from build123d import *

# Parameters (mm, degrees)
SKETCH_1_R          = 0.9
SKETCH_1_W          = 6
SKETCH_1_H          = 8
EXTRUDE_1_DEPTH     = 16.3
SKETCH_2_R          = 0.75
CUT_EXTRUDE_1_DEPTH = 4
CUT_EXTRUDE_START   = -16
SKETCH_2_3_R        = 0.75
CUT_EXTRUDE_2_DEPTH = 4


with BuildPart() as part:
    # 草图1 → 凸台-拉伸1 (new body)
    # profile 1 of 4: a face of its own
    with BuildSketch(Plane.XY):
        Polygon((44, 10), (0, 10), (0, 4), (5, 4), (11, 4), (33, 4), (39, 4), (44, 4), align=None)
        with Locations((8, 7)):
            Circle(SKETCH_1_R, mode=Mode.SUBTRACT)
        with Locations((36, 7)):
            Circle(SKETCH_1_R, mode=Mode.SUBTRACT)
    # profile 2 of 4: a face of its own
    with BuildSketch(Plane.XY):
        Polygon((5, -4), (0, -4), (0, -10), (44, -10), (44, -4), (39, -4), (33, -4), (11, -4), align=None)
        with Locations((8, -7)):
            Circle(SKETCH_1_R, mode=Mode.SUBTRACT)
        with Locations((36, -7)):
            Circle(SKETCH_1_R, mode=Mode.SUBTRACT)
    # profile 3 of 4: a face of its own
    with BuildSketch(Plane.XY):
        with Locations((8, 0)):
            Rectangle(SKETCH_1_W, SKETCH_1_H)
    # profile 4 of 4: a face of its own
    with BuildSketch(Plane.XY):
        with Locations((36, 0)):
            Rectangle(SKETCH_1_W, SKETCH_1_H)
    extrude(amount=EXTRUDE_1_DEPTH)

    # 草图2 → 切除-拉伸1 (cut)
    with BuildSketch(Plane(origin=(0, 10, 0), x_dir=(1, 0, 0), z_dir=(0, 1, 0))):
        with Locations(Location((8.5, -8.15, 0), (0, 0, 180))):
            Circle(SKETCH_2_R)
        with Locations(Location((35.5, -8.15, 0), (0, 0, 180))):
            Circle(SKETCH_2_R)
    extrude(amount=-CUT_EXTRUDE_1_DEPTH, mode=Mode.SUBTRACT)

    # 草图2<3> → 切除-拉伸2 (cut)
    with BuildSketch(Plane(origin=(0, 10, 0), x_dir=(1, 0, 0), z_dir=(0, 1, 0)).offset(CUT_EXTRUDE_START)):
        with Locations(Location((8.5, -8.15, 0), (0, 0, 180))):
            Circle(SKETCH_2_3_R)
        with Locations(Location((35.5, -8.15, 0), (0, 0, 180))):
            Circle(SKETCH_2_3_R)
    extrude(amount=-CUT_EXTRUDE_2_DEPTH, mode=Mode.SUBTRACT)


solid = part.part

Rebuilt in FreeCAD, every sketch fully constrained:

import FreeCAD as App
import Part
import Sketcher
Q = App.Units.Quantity

doc = App.newDocument("Part")
body = doc.addObject("PartDesign::Body", "Body")

sketch1 = body.newObject("Sketcher::SketchObject", "Sketch")
sketch1.AttachmentSupport = (doc.getObject("XY_Plane"), [""])
sketch1.MapMode = "FlatFace"
sketch1.addGeometry(Part.LineSegment(App.Vector(44, 10, 0), App.Vector(0, 10, 0)), False)
sketch1.addGeometry(Part.LineSegment(App.Vector(0, 10, 0), App.Vector(0, 4, 0)), False)
sketch1.addGeometry(Part.LineSegment(App.Vector(0, 4, 0), App.Vector(5, 4, 0)), False)
sketch1.addGeometry(Part.LineSegment(App.Vector(5, 4, 0), App.Vector(5, -4, 0)), False)
sketch1.addGeometry(Part.LineSegment(App.Vector(5, -4, 0), App.Vector(0, -4, 0)), False)
sketch1.addGeometry(Part.LineSegment(App.Vector(0, -4, 0), App.Vector(0, -10, 0)), False)
sketch1.addGeometry(Part.LineSegment(App.Vector(0, -10, 0), App.Vector(44, -10, 0)), False)
sketch1.addGeometry(Part.LineSegment(App.Vector(44, -10, 0), App.Vector(44, -4, 0)), False)
sketch1.addGeometry(Part.LineSegment(App.Vector(44, -4, 0), App.Vector(39, -4, 0)), False)
sketch1.addGeometry(Part.LineSegment(App.Vector(39, -4, 0), App.Vector(39, 4, 0)), False)
sketch1.addGeometry(Part.LineSegment(App.Vector(39, 4, 0), App.Vector(44, 4, 0)), False)
sketch1.addGeometry(Part.LineSegment(App.Vector(44, 4, 0), App.Vector(44, 10, 0)), False)
sketch1.addGeometry(Part.LineSegment(App.Vector(11, 4, 0), App.Vector(33, 4, 0)), False)
sketch1.addGeometry(Part.LineSegment(App.Vector(33, 4, 0), App.Vector(33, -4, 0)), False)
sketch1.addGeometry(Part.LineSegment(App.Vector(33, -4, 0), App.Vector(11, -4, 0)), False)
sketch1.addGeometry(Part.LineSegment(App.Vector(11, -4, 0), App.Vector(11, 4, 0)), False)
sketch1.addGeometry(Part.Circle(App.Vector(8, 7, 0), App.Vector(0, 0, 1), 0.9), False)
sketch1.addGeometry(Part.Circle(App.Vector(36, 7, 0), App.Vector(0, 0, 1), 0.9), False)
sketch1.addGeometry(Part.Circle(App.Vector(8, -7, 0), App.Vector(0, 0, 1), 0.9), False)
sketch1.addGeometry(Part.Circle(App.Vector(36, -7, 0), App.Vector(0, 0, 1), 0.9), False)
sketch1.addConstraint(Sketcher.Constraint("Coincident", 0, 2, 1, 1))
sketch1.addConstraint(Sketcher.Constraint("Coincident", 1, 2, 2, 1))
sketch1.addConstraint(Sketcher.Constraint("Coincident", 2, 2, 3, 1))
sketch1.addConstraint(Sketcher.Constraint("Coincident", 3, 2, 4, 1))
sketch1.addConstraint(Sketcher.Constraint("Coincident", 4, 2, 5, 1))
sketch1.addConstraint(Sketcher.Constraint("Coincident", 5, 2, 6, 1))
sketch1.addConstraint(Sketcher.Constraint("Coincident", 6, 2, 7, 1))
sketch1.addConstraint(Sketcher.Constraint("Coincident", 7, 2, 8, 1))
sketch1.addConstraint(Sketcher.Constraint("Coincident", 8, 2, 9, 1))
sketch1.addConstraint(Sketcher.Constraint("Coincident", 9, 2, 10, 1))
sketch1.addConstraint(Sketcher.Constraint("Coincident", 10, 2, 11, 1))
sketch1.addConstraint(Sketcher.Constraint("Coincident", 11, 2, 0, 1))
sketch1.addConstraint(Sketcher.Constraint("Coincident", 12, 2, 13, 1))
sketch1.addConstraint(Sketcher.Constraint("Coincident", 13, 2, 14, 1))
sketch1.addConstraint(Sketcher.Constraint("Coincident", 14, 2, 15, 1))
sketch1.addConstraint(Sketcher.Constraint("Coincident", 15, 2, 12, 1))
sketch1.addConstraint(Sketcher.Constraint("Horizontal", 0))
sketch1.addConstraint(Sketcher.Constraint("Vertical", 1))
sketch1.addConstraint(Sketcher.Constraint("Horizontal", 2))
sketch1.addConstraint(Sketcher.Constraint("Vertical", 3))
sketch1.addConstraint(Sketcher.Constraint("Horizontal", 4))
sketch1.addConstraint(Sketcher.Constraint("Vertical", 5))
sketch1.addConstraint(Sketcher.Constraint("Horizontal", 6))
sketch1.addConstraint(Sketcher.Constraint("Vertical", 7))
sketch1.addConstraint(Sketcher.Constraint("Horizontal", 8))
sketch1.addConstraint(Sketcher.Constraint("Vertical", 9))
sketch1.addConstraint(Sketcher.Constraint("Horizontal", 10))
sketch1.addConstraint(Sketcher.Constraint("Vertical", 11))
sketch1.addConstraint(Sketcher.Constraint("Horizontal", 12))
sketch1.addConstraint(Sketcher.Constraint("Vertical", 13))
sketch1.addConstraint(Sketcher.Constraint("Horizontal", 14))
sketch1.addConstraint(Sketcher.Constraint("Vertical", 15))
sketch1.addConstraint(Sketcher.Constraint("Equal", 16, 17))
sketch1.addConstraint(Sketcher.Constraint("Equal", 17, 18))
sketch1.addConstraint(Sketcher.Constraint("Equal", 18, 19))
sketch1.addConstraint(Sketcher.Constraint("Symmetric", 1, 2, 4, 2, -1, 1))
sketch1.addConstraint(Sketcher.Constraint("Symmetric", 16, 3, 18, 3, -1))
sketch1.addConstraint(Sketcher.Constraint("Symmetric", 17, 3, 19, 3, -1))
sketch1.addConstraint(Sketcher.Constraint("Symmetric", 0, 2, 5, 2, -1))
sketch1.addConstraint(Sketcher.Constraint("Symmetric", 7, 2, 10, 2, -1))
sketch1.addConstraint(Sketcher.Constraint("Horizontal", 16, 3, 17, 3))
sketch1.addConstraint(Sketcher.Constraint("Horizontal", 4, 2, 7, 2))
sketch1.addConstraint(Sketcher.Constraint("Horizontal", 10, 2, 12, 2))
sketch1.addConstraint(Sketcher.Constraint("Horizontal", 8, 2, 13, 2))
sketch1.addConstraint(Sketcher.Constraint("Equal", 4, 8))
sketch1.addConstraint(Sketcher.Constraint("Diameter", 16, Q("1.8 mm")))
sketch1.addConstraint(Sketcher.Constraint("DistanceX", 0, 2, 0, 1, Q("44 mm")))
sketch1.addConstraint(Sketcher.Constraint("DistanceX", 2, 1, 2, 2, Q("5 mm")))
sketch1.addConstraint(Sketcher.Constraint("DistanceX", 12, 1, 12, 2, Q("22 mm")))
sketch1.addConstraint(Sketcher.Constraint("DistanceY", 1, 2, 1, 1, Q("6 mm")))
sketch1.addConstraint(Sketcher.Constraint("DistanceY", 3, 2, 3, 1, Q("8 mm")))
sketch1.addConstraint(Sketcher.Constraint("DistanceX", -1, 1, 16, 3, Q("8 mm")))
sketch1.addConstraint(Sketcher.Constraint("DistanceY", -1, 1, 16, 3, Q("7 mm")))
sketch1.addConstraint(Sketcher.Constraint("DistanceX", -1, 1, 17, 3, Q("36 mm")))
sketch1.addConstraint(Sketcher.Constraint("DistanceX", -1, 1, 12, 2, Q("33 mm")))
pad1 = body.newObject("PartDesign::Pad", "Pad")
pad1.Profile = sketch1
pad1.Length = 16.3

sketch2 = body.newObject("Sketcher::SketchObject", "Sketch001")
sketch2.AttachmentSupport = (doc.getObject("XZ_Plane"), [""])
sketch2.MapMode = "FlatFace"
sketch2.AttachmentOffset = App.Placement(App.Vector(0, 0, -10), App.Rotation())
sketch2.addGeometry(Part.Circle(App.Vector(8.5, 8.2, 0), App.Vector(0, 0, 1), 0.8), False)
sketch2.addGeometry(Part.Circle(App.Vector(35.5, 8.2, 0), App.Vector(0, 0, 1), 0.8), False)
sketch2.addConstraint(Sketcher.Constraint("Equal", 0, 1))
sketch2.addConstraint(Sketcher.Constraint("Horizontal", 0, 3, 1, 3))
sketch2.addConstraint(Sketcher.Constraint("Diameter", 0, Q("1.5 mm")))
sketch2.addConstraint(Sketcher.Constraint("DistanceX", 0, 3, 1, 3, Q("27 mm")))
sketch2.addConstraint(Sketcher.Constraint("DistanceX", -1, 1, 0, 3, Q("8.5 mm")))
sketch2.addConstraint(Sketcher.Constraint("DistanceY", -1, 1, 0, 3, Q("8.15 mm")))
pocket1 = body.newObject("PartDesign::Pocket", "Pocket")
pocket1.Profile = sketch2
pocket1.Length = 4
pocket1.Reversed = True

sketch3 = body.newObject("Sketcher::SketchObject", "Sketch002")
sketch3.AttachmentSupport = (doc.getObject("XZ_Plane"), [""])
sketch3.MapMode = "FlatFace"
sketch3.AttachmentOffset = App.Placement(App.Vector(0, 0, 6), App.Rotation())
sketch3.addGeometry(Part.Circle(App.Vector(8.5, 8.2, 0), App.Vector(0, 0, 1), 0.8), False)
sketch3.addGeometry(Part.Circle(App.Vector(35.5, 8.2, 0), App.Vector(0, 0, 1), 0.8), False)
sketch3.addConstraint(Sketcher.Constraint("Equal", 0, 1))
sketch3.addConstraint(Sketcher.Constraint("Horizontal", 0, 3, 1, 3))
sketch3.addConstraint(Sketcher.Constraint("Diameter", 0, Q("1.5 mm")))
sketch3.addConstraint(Sketcher.Constraint("DistanceX", 0, 3, 1, 3, Q("27 mm")))
sketch3.addConstraint(Sketcher.Constraint("DistanceX", -1, 1, 0, 3, Q("8.5 mm")))
sketch3.addConstraint(Sketcher.Constraint("DistanceY", -1, 1, 0, 3, Q("8.15 mm")))
pocket2 = body.newObject("PartDesign::Pocket", "Pocket001")
pocket2.Profile = sketch3
pocket2.Length = 4
pocket2.Reversed = True

doc.recompute()
